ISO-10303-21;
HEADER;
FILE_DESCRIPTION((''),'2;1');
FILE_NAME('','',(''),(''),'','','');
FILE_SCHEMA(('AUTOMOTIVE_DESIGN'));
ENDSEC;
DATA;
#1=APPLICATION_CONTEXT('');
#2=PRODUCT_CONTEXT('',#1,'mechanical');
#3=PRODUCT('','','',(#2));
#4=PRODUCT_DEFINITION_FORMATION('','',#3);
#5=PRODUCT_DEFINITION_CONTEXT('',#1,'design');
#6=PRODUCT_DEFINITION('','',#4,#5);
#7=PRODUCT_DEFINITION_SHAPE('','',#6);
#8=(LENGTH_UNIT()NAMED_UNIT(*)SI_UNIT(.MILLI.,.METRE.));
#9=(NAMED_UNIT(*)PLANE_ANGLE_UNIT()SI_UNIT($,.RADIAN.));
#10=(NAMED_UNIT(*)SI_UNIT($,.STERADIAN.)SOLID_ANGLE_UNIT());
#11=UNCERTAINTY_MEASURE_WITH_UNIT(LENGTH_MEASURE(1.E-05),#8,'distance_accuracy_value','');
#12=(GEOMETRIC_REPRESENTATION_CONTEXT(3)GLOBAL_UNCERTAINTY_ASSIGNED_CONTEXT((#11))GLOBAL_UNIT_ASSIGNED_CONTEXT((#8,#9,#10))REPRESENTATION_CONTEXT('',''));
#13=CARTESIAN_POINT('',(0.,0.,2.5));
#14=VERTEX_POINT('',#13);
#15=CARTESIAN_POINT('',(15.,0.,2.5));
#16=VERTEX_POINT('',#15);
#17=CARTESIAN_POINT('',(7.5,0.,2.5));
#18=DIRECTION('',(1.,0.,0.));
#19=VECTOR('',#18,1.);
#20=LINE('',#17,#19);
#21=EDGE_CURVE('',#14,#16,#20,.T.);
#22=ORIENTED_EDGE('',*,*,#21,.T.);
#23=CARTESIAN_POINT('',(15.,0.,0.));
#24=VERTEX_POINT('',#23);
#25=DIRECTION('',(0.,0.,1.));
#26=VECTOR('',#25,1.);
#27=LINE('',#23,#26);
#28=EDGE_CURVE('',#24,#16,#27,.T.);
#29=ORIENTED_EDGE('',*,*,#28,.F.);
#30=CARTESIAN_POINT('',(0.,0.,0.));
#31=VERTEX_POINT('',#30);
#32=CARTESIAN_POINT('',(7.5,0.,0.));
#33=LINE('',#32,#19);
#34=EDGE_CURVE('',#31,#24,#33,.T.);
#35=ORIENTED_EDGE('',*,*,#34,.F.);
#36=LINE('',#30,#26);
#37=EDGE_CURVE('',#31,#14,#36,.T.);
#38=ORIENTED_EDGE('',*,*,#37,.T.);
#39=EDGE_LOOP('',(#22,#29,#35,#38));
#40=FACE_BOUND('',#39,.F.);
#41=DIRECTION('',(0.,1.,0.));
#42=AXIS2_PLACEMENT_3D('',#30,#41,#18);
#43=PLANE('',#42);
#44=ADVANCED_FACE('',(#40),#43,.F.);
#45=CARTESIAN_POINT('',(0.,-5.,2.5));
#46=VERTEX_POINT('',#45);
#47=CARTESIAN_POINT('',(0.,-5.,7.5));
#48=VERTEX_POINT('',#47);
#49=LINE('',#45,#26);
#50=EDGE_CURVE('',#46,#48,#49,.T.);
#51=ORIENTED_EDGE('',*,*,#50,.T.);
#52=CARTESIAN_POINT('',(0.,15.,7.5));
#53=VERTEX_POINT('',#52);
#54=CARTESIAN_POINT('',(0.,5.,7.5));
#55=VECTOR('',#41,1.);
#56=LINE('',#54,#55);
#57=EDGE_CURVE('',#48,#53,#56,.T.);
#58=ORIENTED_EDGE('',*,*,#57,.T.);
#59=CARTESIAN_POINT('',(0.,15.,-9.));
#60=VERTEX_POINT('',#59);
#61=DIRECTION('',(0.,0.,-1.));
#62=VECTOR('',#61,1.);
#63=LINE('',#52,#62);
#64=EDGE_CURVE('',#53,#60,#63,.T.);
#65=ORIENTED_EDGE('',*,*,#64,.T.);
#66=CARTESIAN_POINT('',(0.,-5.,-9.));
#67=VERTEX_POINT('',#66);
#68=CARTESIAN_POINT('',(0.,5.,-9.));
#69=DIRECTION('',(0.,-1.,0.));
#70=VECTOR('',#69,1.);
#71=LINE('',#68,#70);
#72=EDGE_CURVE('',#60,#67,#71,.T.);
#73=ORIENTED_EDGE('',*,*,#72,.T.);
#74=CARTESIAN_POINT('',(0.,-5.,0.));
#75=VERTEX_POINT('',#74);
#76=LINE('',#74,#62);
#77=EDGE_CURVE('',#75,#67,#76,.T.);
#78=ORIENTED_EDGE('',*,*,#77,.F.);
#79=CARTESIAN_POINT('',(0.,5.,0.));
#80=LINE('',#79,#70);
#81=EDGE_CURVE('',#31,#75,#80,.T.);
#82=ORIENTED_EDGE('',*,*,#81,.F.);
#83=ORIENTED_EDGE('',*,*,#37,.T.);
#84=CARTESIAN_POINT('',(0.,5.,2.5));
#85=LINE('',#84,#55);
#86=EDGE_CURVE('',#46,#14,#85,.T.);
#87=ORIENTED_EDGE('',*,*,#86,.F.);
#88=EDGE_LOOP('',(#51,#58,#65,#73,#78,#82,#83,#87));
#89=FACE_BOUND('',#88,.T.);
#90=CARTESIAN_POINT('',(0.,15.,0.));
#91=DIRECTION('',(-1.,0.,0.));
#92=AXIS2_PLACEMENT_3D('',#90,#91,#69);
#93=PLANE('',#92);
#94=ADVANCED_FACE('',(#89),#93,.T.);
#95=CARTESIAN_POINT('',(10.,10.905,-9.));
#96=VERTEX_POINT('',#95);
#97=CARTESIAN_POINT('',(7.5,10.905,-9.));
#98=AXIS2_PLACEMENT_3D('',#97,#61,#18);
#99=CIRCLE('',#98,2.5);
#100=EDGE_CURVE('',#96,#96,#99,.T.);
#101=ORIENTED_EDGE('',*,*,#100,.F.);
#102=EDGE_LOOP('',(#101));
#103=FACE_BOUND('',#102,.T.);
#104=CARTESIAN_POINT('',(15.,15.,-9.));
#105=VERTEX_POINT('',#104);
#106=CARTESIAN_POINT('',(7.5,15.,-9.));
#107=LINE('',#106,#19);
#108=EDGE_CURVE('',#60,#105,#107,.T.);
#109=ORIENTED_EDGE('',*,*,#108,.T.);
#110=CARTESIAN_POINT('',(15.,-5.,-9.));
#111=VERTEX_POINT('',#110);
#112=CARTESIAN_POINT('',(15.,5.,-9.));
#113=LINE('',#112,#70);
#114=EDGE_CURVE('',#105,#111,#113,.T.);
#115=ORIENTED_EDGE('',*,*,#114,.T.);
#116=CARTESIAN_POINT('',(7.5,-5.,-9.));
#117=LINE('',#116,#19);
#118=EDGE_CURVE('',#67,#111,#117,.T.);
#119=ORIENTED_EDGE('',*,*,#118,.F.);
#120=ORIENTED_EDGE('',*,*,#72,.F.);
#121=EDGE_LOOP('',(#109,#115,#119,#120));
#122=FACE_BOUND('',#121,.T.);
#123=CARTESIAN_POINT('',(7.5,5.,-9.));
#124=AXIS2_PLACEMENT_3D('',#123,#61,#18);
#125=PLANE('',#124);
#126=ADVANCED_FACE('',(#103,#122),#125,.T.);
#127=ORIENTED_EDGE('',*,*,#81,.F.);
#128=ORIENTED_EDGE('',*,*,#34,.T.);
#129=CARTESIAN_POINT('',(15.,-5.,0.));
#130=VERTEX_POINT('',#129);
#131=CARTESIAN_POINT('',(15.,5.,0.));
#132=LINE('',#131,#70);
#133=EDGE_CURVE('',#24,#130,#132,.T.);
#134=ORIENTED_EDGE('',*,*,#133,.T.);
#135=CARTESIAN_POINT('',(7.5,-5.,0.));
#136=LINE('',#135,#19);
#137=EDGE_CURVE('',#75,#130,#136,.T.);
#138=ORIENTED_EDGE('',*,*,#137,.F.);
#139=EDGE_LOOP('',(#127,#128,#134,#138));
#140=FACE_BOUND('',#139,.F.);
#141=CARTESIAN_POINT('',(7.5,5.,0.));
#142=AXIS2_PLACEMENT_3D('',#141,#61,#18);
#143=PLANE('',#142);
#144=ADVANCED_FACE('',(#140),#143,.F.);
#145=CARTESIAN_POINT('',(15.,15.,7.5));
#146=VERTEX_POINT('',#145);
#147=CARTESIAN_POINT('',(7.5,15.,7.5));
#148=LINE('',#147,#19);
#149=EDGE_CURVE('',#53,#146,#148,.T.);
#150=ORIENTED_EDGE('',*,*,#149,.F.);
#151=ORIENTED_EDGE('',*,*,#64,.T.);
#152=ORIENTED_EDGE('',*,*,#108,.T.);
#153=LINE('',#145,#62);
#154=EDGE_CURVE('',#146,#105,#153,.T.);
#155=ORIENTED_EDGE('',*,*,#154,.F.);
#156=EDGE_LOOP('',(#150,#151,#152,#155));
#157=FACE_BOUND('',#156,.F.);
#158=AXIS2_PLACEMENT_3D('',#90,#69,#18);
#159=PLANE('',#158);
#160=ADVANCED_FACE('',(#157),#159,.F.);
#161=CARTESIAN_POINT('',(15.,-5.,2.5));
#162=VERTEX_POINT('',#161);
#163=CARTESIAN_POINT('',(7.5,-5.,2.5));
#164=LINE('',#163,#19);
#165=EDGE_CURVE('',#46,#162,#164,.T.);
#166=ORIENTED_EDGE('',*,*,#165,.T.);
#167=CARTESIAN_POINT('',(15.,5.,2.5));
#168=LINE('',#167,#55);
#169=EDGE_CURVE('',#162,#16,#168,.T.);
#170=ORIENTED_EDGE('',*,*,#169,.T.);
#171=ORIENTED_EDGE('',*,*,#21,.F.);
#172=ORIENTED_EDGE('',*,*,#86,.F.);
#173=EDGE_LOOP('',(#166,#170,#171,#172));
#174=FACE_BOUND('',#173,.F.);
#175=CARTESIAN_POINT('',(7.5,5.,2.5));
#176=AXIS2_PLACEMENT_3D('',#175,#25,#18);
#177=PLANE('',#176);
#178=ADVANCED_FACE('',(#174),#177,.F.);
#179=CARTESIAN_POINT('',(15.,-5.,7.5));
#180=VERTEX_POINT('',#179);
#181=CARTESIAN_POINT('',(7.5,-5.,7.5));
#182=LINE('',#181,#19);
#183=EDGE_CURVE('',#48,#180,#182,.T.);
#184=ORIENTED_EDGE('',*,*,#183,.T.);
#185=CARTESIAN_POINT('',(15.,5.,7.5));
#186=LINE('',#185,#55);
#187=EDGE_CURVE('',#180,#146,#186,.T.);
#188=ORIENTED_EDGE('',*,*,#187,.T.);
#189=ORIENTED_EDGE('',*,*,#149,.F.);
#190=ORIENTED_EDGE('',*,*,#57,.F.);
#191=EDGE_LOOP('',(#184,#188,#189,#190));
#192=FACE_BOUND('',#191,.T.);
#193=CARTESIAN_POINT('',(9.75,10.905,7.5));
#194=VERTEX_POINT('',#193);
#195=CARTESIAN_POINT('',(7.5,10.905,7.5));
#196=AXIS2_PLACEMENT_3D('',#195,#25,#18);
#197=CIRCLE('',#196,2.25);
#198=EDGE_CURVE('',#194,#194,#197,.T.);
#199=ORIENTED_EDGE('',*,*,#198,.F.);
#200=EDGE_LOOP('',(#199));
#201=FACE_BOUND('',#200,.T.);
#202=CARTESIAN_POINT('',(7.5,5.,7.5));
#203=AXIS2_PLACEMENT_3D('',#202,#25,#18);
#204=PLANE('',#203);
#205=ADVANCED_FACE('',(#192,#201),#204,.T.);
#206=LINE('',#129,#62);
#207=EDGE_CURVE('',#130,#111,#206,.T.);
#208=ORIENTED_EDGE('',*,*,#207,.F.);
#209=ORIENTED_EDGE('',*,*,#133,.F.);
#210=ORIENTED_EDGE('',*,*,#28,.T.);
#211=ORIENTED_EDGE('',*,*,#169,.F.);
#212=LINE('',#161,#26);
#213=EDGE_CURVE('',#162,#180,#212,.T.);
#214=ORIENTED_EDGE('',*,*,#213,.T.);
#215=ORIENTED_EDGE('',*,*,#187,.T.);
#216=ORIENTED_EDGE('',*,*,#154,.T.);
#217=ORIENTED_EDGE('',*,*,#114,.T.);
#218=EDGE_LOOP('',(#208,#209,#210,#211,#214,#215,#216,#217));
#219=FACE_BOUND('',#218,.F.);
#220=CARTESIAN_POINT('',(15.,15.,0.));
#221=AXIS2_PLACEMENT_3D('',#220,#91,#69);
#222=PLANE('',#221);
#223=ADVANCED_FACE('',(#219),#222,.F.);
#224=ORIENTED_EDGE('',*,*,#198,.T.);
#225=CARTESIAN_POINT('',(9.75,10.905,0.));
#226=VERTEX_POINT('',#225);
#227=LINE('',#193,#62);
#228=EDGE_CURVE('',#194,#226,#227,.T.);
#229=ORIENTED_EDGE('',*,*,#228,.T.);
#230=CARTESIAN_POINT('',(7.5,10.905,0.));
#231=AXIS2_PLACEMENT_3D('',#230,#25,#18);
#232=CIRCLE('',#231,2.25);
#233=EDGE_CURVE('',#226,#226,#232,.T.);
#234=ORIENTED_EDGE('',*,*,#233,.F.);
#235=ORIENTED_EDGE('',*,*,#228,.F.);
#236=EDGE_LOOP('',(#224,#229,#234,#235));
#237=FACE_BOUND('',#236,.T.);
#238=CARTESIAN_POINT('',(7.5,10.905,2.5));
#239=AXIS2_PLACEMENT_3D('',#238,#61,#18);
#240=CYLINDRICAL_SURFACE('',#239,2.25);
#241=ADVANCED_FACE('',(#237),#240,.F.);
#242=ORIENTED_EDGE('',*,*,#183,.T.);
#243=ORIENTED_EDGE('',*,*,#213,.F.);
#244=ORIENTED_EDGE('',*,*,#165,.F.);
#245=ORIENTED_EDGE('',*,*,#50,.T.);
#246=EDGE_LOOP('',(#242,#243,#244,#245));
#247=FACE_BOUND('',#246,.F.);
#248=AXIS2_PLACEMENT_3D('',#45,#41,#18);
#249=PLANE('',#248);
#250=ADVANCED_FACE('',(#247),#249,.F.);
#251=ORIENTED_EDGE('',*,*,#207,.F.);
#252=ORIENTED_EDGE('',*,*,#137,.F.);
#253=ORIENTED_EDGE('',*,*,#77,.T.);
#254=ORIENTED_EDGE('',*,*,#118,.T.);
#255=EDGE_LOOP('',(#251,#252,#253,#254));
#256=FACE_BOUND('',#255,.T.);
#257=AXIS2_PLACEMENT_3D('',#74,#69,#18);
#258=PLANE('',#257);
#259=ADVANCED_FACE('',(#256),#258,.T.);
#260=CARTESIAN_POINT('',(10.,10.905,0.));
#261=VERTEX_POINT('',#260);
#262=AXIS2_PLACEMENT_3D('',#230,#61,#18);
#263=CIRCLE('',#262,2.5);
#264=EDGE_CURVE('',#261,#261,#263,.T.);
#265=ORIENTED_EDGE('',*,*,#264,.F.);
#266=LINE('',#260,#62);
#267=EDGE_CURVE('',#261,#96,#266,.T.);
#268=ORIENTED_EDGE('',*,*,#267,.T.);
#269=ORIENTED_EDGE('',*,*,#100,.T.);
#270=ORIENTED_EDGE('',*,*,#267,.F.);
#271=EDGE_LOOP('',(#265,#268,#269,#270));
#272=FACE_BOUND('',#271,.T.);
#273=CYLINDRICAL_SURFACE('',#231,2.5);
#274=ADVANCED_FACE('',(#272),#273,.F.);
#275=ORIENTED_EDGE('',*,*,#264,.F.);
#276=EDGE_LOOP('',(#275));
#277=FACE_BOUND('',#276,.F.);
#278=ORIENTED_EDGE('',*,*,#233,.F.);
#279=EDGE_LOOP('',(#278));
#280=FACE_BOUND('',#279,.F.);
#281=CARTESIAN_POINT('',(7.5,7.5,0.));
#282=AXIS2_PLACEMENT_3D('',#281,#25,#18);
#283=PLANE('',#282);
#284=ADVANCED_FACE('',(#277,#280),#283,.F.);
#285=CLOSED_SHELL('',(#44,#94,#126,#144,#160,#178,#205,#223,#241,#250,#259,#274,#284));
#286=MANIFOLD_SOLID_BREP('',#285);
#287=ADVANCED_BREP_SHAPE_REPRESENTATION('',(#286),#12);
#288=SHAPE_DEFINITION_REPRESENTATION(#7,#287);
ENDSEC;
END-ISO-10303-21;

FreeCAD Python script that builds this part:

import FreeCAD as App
import Part
import Sketcher
Q = App.Units.Quantity

doc = App.newDocument("Part")
body = doc.addObject("PartDesign::Body", "Body")

# Sketch on XY plane
sketch1 = body.newObject("Sketcher::SketchObject", "Sketch")
sketch1.AttachmentSupport = (doc.getObject("XY_Plane"), [""])
sketch1.MapMode = "FlatFace"
sketch1.addGeometry(Part.LineSegment(App.Vector(0, 15, 0), App.Vector(0, 0, 0)), False)
sketch1.addGeometry(Part.LineSegment(App.Vector(0, 0, 0), App.Vector(15, 0, 0)), False)
sketch1.addGeometry(Part.LineSegment(App.Vector(15, 0, 0), App.Vector(15, 15, 0)), False)
sketch1.addGeometry(Part.LineSegment(App.Vector(15, 15, 0), App.Vector(0, 15, 0)), False)
sketch1.addGeometry(Part.Circle(App.Vector(7.5, 10.9, 0), App.Vector(0, 0, 1), 2.2), False)
sketch1.addConstraint(Sketcher.Constraint("Coincident", 0, 2, 1, 1))
sketch1.addConstraint(Sketcher.Constraint("Coincident", 1, 2, 2, 1))
sketch1.addConstraint(Sketcher.Constraint("Coincident", 2, 2, 3, 1))
sketch1.addConstraint(Sketcher.Constraint("Coincident", 3, 2, 0, 1))
sketch1.addConstraint(Sketcher.Constraint("Vertical", 0))
sketch1.addConstraint(Sketcher.Constraint("Horizontal", 1))
sketch1.addConstraint(Sketcher.Constraint("Vertical", 2))
sketch1.addConstraint(Sketcher.Constraint("Horizontal", 3))
sketch1.addConstraint(Sketcher.Constraint("Coincident", 0, 2, -1, 1))
sketch1.addConstraint(Sketcher.Constraint("Equal", 3, 0))
sketch1.addConstraint(Sketcher.Constraint("Diameter", 4, Q("4.5 mm")))
sketch1.addConstraint(Sketcher.Constraint("DistanceX", 1, 1, 1, 2, Q("15 mm")))
sketch1.addConstraint(Sketcher.Constraint("DistanceX", -1, 1, 4, 3, Q("7.5 mm")))
sketch1.addConstraint(Sketcher.Constraint("DistanceY", -1, 1, 4, 3, Q("10.905 mm")))
pad1 = body.newObject("PartDesign::Pad", "Pad")
pad1.Profile = sketch1
pad1.Length = 2.5

# Sketch on XY plane
sketch2 = body.newObject("Sketcher::SketchObject", "Sketch001")
sketch2.AttachmentSupport = (doc.getObject("XY_Plane"), [""])
sketch2.MapMode = "FlatFace"
sketch2.AttachmentOffset = App.Placement(App.Vector(0, 0, 2.5), App.Rotation())
sketch2.addGeometry(Part.LineSegment(App.Vector(0, 15, 0), App.Vector(0, -5, 0)), False)
sketch2.addGeometry(Part.LineSegment(App.Vector(0, -5, 0), App.Vector(15, -5, 0)), False)
sketch2.addGeometry(Part.LineSegment(App.Vector(15, -5, 0), App.Vector(15, 15, 0)), False)
sketch2.addGeometry(Part.LineSegment(App.Vector(15, 15, 0), App.Vector(0, 15, 0)), False)
sketch2.addGeometry(Part.Circle(App.Vector(7.5, 10.9, 0), App.Vector(0, 0, 1), 2.2), False)
sketch2.addConstraint(Sketcher.Constraint("Coincident", 0, 2, 1, 1))
sketch2.addConstraint(Sketcher.Constraint("Coincident", 1, 2, 2, 1))
sketch2.addConstraint(Sketcher.Constraint("Coincident", 2, 2, 3, 1))
sketch2.addConstraint(Sketcher.Constraint("Coincident", 3, 2, 0, 1))
sketch2.addConstraint(Sketcher.Constraint("Vertical", 0))
sketch2.addConstraint(Sketcher.Constraint("Horizontal", 1))
sketch2.addConstraint(Sketcher.Constraint("Vertical", 2))
sketch2.addConstraint(Sketcher.Constraint("Horizontal", 3))
sketch2.addConstraint(Sketcher.Constraint("PointOnObject", 0, 2, -2))
sketch2.addConstraint(Sketcher.Constraint("Diameter", 4, Q("4.5 mm")))
sketch2.addConstraint(Sketcher.Constraint("DistanceX", 1, 1, 1, 2, Q("15 mm")))
sketch2.addConstraint(Sketcher.Constraint("DistanceY", 0, 2, 0, 1, Q("20 mm")))
sketch2.addConstraint(Sketcher.Constraint("DistanceY", 0, 2, -1, 1, Q("5 mm")))
sketch2.addConstraint(Sketcher.Constraint("DistanceX", -1, 1, 4, 3, Q("7.5 mm")))
sketch2.addConstraint(Sketcher.Constraint("DistanceY", -1, 1, 4, 3, Q("10.905 mm")))
pad2 = body.newObject("PartDesign::Pad", "Pad001")
pad2.Profile = sketch2
pad2.Length = 5

# Sketch on XY plane
sketch3 = body.newObject("Sketcher::SketchObject", "Sketch002")
sketch3.AttachmentSupport = (doc.getObject("XY_Plane"), [""])
sketch3.MapMode = "FlatFace"
sketch3.addGeometry(Part.LineSegment(App.Vector(0, -5, 0), App.Vector(0, 15, 0)), False)
sketch3.addGeometry(Part.LineSegment(App.Vector(0, 15, 0), App.Vector(15, 15, 0)), False)
sketch3.addGeometry(Part.LineSegment(App.Vector(15, 15, 0), App.Vector(15, -5, 0)), False)
sketch3.addGeometry(Part.LineSegment(App.Vector(15, -5, 0), App.Vector(0, -5, 0)), False)
sketch3.addGeometry(Part.Circle(App.Vector(7.5, 10.9, 0), App.Vector(0, 0, 1), 2.5), False)
sketch3.addConstraint(Sketcher.Constraint("Coincident", 0, 2, 1, 1))
sketch3.addConstraint(Sketcher.Constraint("Coincident", 1, 2, 2, 1))
sketch3.addConstraint(Sketcher.Constraint("Coincident", 2, 2, 3, 1))
sketch3.addConstraint(Sketcher.Constraint("Coincident", 3, 2, 0, 1))
sketch3.addConstraint(Sketcher.Constraint("Vertical", 0))
sketch3.addConstraint(Sketcher.Constraint("Horizontal", 1))
sketch3.addConstraint(Sketcher.Constraint("Vertical", 2))
sketch3.addConstraint(Sketcher.Constraint("Horizontal", 3))
sketch3.addConstraint(Sketcher.Constraint("PointOnObject", 0, 2, -2))
sketch3.addConstraint(Sketcher.Constraint("Diameter", 4, Q("5 mm")))
sketch3.addConstraint(Sketcher.Constraint("DistanceX", 1, 1, 1, 2, Q("15 mm")))
sketch3.addConstraint(Sketcher.Constraint("DistanceY", 0, 1, 0, 2, Q("20 mm")))
sketch3.addConstraint(Sketcher.Constraint("DistanceY", -1, 1, 0, 2, Q("15 mm")))
sketch3.addConstraint(Sketcher.Constraint("DistanceX", -1, 1, 4, 3, Q("7.5 mm")))
sketch3.addConstraint(Sketcher.Constraint("DistanceY", -1, 1, 4, 3, Q("10.905 mm")))
pad3 = body.newObject("PartDesign::Pad", "Pad002")
pad3.Profile = sketch3
pad3.Length = 9
pad3.Reversed = True

doc.recompute()
